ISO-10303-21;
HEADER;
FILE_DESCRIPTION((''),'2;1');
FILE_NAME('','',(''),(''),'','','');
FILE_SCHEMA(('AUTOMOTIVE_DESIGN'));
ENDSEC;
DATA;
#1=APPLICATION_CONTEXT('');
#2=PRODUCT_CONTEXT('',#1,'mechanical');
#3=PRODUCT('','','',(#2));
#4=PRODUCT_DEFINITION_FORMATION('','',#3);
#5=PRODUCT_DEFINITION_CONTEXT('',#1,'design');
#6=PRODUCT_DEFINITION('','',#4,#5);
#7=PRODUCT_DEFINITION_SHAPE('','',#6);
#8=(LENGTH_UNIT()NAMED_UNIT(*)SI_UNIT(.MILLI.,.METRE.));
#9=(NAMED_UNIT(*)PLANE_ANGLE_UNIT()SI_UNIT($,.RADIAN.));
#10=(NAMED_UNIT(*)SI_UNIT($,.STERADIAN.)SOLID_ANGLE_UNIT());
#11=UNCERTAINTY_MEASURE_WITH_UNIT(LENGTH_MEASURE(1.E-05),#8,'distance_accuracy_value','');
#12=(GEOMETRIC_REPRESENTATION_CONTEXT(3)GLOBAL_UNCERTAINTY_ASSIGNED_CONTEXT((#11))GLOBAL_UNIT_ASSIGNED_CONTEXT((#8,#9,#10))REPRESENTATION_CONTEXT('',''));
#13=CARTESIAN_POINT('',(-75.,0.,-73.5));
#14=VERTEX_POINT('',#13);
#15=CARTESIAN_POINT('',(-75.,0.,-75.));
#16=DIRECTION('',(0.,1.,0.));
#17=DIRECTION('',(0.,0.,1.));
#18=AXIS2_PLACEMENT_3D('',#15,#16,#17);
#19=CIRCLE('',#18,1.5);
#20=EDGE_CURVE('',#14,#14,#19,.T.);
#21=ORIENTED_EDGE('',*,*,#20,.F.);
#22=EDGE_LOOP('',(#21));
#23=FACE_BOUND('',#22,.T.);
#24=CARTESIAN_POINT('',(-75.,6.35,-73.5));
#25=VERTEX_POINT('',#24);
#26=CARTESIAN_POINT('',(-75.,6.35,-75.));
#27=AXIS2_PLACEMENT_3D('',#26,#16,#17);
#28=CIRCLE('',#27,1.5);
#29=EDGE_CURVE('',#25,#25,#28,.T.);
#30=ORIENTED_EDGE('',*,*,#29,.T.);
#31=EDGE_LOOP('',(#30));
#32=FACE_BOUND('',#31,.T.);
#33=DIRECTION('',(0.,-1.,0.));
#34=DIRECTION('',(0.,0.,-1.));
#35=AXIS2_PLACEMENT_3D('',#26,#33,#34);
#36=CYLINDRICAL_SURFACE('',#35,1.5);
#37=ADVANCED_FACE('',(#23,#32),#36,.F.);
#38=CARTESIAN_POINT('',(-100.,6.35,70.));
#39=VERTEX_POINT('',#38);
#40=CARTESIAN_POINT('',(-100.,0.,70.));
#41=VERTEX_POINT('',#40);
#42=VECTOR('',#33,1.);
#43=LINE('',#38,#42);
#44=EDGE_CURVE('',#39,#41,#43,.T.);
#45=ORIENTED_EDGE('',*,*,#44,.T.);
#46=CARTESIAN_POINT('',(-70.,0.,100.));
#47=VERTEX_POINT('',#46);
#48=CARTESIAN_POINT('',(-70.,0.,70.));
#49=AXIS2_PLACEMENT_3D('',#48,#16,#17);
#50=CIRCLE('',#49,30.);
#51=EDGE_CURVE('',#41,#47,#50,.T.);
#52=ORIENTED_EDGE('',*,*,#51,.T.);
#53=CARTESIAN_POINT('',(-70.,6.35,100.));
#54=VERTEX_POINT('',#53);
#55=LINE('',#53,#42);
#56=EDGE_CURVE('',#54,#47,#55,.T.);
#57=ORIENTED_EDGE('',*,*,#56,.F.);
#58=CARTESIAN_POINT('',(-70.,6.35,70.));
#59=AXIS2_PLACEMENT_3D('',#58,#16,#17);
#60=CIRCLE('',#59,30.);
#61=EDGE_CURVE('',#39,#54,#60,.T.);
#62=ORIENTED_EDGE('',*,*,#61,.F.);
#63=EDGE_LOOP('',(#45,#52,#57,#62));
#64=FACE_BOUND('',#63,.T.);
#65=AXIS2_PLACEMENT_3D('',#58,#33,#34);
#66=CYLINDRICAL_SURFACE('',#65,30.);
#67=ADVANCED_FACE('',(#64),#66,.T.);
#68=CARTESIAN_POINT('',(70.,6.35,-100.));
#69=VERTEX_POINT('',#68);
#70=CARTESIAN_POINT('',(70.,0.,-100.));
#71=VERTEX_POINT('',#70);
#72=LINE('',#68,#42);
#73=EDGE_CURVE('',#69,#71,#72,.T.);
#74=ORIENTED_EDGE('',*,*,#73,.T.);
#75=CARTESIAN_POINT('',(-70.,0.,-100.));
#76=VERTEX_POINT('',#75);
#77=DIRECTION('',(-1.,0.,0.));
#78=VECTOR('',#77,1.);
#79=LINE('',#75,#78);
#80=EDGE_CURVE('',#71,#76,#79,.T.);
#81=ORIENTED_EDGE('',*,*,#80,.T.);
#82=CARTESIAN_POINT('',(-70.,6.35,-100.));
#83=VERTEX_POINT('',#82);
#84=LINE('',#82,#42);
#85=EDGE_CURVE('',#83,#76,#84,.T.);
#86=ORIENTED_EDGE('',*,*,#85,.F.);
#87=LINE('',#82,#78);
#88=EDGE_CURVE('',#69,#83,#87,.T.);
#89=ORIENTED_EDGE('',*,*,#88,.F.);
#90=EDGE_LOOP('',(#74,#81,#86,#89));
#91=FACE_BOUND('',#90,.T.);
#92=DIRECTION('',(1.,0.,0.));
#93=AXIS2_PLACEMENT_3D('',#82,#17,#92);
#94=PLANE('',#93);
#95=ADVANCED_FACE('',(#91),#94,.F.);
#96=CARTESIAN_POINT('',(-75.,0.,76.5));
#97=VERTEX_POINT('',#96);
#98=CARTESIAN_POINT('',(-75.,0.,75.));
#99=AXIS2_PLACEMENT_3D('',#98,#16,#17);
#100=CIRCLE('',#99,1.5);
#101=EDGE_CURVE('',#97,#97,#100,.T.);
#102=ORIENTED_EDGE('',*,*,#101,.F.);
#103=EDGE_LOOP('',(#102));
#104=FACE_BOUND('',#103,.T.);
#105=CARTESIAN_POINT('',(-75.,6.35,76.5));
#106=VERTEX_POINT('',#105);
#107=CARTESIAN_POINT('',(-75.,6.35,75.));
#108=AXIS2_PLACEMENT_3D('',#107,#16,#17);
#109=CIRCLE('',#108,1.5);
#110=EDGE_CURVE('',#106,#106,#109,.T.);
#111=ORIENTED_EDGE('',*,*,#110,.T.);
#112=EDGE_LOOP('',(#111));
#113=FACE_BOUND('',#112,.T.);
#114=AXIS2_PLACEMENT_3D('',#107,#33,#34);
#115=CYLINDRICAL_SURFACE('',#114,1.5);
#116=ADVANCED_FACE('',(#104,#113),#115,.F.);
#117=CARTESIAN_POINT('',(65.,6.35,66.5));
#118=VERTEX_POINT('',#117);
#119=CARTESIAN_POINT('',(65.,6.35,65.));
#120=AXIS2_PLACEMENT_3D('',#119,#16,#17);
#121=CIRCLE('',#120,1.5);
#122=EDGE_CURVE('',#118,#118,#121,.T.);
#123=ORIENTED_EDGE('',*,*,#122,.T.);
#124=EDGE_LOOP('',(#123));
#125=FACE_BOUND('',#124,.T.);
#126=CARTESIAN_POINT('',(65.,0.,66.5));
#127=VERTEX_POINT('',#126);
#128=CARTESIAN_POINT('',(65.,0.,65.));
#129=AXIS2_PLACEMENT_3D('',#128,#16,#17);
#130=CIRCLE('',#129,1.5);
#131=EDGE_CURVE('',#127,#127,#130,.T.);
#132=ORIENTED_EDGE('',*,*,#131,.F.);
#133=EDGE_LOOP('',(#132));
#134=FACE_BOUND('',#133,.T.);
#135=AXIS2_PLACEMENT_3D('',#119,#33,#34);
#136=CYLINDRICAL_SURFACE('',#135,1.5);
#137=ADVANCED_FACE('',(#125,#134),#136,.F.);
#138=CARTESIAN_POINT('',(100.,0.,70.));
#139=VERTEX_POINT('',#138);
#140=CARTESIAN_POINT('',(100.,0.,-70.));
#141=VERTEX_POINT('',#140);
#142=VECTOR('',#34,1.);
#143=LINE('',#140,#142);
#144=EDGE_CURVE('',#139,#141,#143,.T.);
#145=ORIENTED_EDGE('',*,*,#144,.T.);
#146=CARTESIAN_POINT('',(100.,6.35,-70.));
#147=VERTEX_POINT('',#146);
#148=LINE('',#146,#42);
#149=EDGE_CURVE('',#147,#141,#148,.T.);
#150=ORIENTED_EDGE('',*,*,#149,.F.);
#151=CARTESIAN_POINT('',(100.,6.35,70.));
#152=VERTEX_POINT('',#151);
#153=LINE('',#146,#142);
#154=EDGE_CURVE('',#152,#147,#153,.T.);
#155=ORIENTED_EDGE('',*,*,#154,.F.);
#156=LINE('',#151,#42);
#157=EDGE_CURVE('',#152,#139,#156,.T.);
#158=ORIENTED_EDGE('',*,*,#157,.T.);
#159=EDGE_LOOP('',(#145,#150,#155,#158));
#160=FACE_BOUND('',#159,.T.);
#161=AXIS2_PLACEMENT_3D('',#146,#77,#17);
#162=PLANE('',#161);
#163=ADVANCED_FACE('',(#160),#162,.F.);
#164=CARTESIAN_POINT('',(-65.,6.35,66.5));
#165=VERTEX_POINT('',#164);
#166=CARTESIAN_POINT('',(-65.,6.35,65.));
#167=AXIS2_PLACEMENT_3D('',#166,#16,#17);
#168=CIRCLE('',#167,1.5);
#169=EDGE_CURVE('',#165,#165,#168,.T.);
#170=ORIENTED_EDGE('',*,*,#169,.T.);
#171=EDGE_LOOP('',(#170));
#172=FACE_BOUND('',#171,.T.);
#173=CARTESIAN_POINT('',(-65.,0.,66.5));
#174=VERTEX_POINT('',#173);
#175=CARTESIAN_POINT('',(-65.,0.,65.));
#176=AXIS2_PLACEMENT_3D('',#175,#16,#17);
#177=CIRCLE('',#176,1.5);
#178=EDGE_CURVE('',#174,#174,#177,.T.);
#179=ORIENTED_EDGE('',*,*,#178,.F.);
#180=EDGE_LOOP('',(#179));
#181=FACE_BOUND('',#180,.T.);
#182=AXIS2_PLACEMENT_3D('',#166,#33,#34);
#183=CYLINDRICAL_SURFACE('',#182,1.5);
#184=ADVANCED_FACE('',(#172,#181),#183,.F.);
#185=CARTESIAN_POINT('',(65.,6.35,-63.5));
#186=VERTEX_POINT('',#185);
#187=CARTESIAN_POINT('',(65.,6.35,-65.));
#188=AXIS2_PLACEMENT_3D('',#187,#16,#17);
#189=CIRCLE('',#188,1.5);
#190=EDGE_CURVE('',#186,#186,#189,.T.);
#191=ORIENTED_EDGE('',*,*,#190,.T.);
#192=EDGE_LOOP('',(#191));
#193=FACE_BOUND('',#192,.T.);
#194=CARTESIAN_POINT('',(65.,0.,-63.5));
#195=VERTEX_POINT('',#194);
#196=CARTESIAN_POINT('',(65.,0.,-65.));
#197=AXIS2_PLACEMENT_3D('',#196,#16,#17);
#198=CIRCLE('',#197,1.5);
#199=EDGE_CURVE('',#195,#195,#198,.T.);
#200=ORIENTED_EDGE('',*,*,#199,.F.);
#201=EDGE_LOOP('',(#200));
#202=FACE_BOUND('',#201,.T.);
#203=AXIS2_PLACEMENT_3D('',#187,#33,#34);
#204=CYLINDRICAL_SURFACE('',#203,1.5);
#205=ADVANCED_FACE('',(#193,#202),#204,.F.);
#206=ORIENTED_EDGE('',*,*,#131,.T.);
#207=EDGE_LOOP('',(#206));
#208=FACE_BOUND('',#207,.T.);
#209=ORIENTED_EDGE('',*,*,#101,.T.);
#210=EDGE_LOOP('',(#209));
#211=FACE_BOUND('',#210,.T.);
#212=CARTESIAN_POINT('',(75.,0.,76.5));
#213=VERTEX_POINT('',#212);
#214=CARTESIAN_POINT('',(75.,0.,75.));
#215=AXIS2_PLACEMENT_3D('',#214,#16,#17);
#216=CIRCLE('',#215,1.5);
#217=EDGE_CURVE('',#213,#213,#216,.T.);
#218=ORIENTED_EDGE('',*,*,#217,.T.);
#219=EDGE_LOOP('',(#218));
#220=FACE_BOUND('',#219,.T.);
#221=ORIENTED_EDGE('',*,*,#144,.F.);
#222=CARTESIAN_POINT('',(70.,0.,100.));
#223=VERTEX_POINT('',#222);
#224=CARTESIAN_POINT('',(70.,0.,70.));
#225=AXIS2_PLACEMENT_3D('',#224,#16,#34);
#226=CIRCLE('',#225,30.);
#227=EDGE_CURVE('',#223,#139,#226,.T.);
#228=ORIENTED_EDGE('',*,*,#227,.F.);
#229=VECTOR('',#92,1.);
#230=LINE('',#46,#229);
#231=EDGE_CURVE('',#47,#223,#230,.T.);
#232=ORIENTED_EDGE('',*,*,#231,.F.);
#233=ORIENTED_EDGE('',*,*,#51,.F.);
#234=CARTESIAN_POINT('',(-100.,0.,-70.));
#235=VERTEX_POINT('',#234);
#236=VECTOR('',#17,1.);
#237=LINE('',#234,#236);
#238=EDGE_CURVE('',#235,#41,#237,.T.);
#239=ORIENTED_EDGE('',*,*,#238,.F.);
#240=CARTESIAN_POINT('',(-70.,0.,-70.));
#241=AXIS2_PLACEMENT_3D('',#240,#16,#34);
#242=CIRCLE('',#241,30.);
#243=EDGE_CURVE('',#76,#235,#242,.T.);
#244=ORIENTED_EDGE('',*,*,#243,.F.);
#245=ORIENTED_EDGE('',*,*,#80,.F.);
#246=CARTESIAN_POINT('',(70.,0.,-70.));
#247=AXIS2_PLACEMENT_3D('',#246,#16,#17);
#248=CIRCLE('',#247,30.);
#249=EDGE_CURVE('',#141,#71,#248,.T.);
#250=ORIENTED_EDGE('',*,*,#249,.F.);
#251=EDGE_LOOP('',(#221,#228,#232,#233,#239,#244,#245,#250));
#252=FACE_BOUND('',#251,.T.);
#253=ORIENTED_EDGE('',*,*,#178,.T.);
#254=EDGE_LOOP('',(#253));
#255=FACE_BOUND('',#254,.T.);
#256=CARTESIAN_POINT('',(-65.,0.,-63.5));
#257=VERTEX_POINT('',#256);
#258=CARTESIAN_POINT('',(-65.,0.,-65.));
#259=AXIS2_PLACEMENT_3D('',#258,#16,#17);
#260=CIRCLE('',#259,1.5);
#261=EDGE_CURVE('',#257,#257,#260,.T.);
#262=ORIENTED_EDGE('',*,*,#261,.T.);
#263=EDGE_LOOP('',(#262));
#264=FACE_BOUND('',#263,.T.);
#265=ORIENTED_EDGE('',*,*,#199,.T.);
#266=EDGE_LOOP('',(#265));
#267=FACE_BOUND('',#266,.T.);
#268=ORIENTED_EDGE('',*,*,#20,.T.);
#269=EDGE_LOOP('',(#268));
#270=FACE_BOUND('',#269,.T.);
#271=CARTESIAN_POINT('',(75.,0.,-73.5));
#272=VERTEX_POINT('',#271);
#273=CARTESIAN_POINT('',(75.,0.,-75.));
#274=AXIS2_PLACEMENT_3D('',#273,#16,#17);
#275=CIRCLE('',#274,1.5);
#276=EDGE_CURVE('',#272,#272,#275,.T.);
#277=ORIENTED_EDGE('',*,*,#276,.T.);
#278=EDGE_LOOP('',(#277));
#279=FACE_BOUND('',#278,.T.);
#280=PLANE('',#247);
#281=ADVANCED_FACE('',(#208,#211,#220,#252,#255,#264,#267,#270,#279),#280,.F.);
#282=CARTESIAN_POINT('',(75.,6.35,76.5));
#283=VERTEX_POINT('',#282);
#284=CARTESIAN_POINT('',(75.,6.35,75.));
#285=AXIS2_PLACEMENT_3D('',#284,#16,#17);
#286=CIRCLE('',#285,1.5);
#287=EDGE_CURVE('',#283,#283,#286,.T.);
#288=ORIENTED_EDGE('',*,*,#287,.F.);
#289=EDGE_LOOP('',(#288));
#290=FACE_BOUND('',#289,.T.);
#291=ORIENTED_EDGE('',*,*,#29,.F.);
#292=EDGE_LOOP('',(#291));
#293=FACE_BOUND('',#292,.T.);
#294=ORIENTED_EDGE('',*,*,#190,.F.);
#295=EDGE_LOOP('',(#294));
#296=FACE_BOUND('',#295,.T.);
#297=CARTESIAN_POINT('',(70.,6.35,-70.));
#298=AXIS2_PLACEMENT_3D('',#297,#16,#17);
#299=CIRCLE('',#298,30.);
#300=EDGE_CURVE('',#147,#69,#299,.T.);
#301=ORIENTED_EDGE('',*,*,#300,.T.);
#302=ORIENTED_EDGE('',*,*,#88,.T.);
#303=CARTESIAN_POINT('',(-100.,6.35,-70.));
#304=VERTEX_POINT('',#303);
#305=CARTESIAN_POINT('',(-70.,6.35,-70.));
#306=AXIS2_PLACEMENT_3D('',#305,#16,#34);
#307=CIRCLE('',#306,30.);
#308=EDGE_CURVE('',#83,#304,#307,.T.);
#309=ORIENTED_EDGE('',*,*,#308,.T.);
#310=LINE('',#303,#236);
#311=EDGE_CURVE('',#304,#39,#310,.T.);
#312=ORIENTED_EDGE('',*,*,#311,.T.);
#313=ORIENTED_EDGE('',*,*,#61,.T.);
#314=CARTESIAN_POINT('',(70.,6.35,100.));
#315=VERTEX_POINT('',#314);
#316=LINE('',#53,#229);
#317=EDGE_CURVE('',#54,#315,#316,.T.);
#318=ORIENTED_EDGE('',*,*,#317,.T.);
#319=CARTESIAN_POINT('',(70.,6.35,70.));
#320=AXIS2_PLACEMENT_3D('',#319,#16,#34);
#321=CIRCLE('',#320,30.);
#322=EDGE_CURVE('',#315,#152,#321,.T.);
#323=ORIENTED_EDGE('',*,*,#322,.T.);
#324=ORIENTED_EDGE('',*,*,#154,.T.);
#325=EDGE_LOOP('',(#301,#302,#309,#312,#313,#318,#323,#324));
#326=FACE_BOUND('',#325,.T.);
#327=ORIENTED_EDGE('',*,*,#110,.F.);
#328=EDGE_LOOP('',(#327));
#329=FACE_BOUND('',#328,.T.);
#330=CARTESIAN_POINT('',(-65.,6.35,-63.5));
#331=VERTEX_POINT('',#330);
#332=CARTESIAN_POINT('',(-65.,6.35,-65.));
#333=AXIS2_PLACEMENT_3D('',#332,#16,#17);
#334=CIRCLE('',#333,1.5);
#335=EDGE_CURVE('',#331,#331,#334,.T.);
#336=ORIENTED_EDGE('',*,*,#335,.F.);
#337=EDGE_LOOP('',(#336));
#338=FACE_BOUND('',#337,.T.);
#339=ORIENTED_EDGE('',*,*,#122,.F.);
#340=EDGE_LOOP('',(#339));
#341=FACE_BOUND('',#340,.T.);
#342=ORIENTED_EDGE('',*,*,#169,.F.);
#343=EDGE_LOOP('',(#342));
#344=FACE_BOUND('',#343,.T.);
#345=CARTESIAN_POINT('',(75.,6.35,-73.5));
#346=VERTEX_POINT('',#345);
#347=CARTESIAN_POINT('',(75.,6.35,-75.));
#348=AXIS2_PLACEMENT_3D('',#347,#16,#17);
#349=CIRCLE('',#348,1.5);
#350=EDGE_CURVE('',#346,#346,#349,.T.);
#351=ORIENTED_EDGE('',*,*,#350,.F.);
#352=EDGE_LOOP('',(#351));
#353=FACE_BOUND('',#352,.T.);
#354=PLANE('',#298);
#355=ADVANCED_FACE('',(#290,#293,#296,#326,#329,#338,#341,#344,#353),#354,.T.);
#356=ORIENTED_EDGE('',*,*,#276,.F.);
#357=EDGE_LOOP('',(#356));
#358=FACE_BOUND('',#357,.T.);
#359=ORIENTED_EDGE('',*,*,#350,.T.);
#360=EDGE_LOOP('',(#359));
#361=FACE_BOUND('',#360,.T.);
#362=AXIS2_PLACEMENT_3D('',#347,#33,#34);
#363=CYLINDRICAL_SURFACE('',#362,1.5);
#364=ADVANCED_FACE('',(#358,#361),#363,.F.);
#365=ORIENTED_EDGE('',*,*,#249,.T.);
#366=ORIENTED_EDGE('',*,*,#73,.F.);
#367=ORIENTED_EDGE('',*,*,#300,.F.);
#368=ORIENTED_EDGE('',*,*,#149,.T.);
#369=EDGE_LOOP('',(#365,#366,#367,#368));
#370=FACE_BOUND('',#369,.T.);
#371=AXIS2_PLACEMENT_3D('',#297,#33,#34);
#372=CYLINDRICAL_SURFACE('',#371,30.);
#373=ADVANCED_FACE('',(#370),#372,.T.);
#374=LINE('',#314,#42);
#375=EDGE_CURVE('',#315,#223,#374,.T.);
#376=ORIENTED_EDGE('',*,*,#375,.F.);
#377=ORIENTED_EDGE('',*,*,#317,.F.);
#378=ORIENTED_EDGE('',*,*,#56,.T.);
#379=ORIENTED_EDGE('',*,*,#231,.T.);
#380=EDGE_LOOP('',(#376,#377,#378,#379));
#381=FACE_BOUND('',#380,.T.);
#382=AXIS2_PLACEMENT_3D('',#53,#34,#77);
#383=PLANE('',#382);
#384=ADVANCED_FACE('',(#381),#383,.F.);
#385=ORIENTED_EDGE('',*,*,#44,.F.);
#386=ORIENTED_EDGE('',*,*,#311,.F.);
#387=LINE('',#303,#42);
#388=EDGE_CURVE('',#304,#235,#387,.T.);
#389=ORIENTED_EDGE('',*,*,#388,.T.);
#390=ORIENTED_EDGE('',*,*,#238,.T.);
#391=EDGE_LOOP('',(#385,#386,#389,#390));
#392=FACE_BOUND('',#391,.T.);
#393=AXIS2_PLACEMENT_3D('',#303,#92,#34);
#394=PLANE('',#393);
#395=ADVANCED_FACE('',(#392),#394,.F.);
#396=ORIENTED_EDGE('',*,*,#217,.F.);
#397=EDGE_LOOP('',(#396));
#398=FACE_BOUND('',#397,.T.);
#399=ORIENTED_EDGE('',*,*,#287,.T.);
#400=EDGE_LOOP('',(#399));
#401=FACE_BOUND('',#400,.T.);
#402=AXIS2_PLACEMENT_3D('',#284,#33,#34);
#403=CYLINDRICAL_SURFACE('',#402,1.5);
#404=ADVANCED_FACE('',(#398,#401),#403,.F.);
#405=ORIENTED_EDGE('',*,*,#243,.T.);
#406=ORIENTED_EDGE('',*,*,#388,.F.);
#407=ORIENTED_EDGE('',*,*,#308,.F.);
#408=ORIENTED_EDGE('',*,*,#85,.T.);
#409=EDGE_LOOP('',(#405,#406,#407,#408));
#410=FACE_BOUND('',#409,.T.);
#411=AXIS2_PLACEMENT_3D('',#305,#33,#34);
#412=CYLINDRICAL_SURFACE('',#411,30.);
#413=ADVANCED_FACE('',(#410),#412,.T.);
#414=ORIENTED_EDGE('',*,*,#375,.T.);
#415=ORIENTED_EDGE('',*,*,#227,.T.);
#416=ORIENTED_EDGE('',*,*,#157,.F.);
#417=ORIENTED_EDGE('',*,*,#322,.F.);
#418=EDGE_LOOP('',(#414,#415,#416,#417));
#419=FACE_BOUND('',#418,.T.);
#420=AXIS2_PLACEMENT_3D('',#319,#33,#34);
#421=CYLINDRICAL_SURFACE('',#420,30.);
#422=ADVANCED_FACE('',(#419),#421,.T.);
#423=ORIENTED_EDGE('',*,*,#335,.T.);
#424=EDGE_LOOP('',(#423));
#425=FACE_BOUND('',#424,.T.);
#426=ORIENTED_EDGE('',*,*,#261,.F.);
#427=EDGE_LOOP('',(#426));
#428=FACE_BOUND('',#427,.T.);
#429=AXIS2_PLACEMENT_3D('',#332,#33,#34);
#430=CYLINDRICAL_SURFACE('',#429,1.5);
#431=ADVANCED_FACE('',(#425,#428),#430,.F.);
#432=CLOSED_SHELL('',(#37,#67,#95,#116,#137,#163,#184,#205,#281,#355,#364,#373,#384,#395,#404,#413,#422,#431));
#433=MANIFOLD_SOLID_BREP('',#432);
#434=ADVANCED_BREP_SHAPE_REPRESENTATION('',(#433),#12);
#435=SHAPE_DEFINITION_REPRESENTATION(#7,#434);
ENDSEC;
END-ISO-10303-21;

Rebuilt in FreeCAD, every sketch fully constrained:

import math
import FreeCAD as App
import Part
import Sketcher
Q = App.Units.Quantity

doc = App.newDocument("Part")
body = doc.addObject("PartDesign::Body", "Body")

# Sketch on XZ plane
sketch1 = body.newObject("Sketcher::SketchObject", "Sketch")
sketch1.AttachmentSupport = (doc.getObject("XZ_Plane"), [""])
sketch1.MapMode = "FlatFace"
sketch1.addGeometry([
    Part.LineSegment(App.Vector(-70, 100, 0), App.Vector(70, 100, 0)),  # 0
    Part.ArcOfCircle(Part.Circle(App.Vector(70, 70, 0), App.Vector(0, 0, 1), 30), math.radians(0), math.radians(90)),  # 1
    Part.LineSegment(App.Vector(100, 70, 0), App.Vector(100, -70, 0)),  # 2
    Part.ArcOfCircle(Part.Circle(App.Vector(70, -70, 0), App.Vector(0, 0, 1), 30), math.radians(-90), math.radians(0)),  # 3
    Part.LineSegment(App.Vector(70, -100, 0), App.Vector(-70, -100, 0)),  # 4
    Part.ArcOfCircle(Part.Circle(App.Vector(-70, -70, 0), App.Vector(0, 0, 1), 30), math.radians(180), math.radians(270)),  # 5
    Part.LineSegment(App.Vector(-100, -70, 0), App.Vector(-100, 70, 0)),  # 6
    Part.ArcOfCircle(Part.Circle(App.Vector(-70, 70, 0), App.Vector(0, 0, 1), 30), math.radians(90), math.radians(180)),  # 7
    Part.Circle(App.Vector(-75, 75, 0), App.Vector(0, 0, 1), 1.5),  # 8
    Part.Circle(App.Vector(-65, 65, 0), App.Vector(0, 0, 1), 1.5),  # 9
    Part.Circle(App.Vector(75, 75, 0), App.Vector(0, 0, 1), 1.5),  # 10
    Part.Circle(App.Vector(65, 65, 0), App.Vector(0, 0, 1), 1.5),  # 11
    Part.Circle(App.Vector(-65, -65, 0), App.Vector(0, 0, 1), 1.5),  # 12
    Part.Circle(App.Vector(-75, -75, 0), App.Vector(0, 0, 1), 1.5),  # 13
    Part.Circle(App.Vector(65, -65, 0), App.Vector(0, 0, 1), 1.5),  # 14
    Part.Circle(App.Vector(75, -75, 0), App.Vector(0, 0, 1), 1.5),  # 15
], False)
sketch1.addConstraint([
    Sketcher.Constraint("Tangent", 0, 2, 1, 2),
    Sketcher.Constraint("Tangent", 1, 1, 2, 1),
    Sketcher.Constraint("Tangent", 2, 2, 3, 2),
    Sketcher.Constraint("Tangent", 3, 1, 4, 1),
    Sketcher.Constraint("Tangent", 4, 2, 5, 2),
    Sketcher.Constraint("Tangent", 5, 1, 6, 1),
    Sketcher.Constraint("Tangent", 6, 2, 7, 2),
    Sketcher.Constraint("Tangent", 7, 1, 0, 1),
    Sketcher.Constraint("Horizontal", 0),
    Sketcher.Constraint("Vertical", 2),
    Sketcher.Constraint("Horizontal", 4),
    Sketcher.Constraint("Vertical", 6),
    Sketcher.Constraint("Equal", 1, 3),
    Sketcher.Constraint("Equal", 3, 5),
    Sketcher.Constraint("Equal", 5, 7),
    Sketcher.Constraint("Equal", 8, 9),
    Sketcher.Constraint("Equal", 9, 10),
    Sketcher.Constraint("Equal", 10, 11),
    Sketcher.Constraint("Equal", 11, 12),
    Sketcher.Constraint("Equal", 12, 13),
    Sketcher.Constraint("Equal", 13, 14),
    Sketcher.Constraint("Equal", 14, 15),
    Sketcher.Constraint("Symmetric", 1, 3, 5, 3, -1, 1),
    Sketcher.Constraint("Symmetric", 11, 3, 12, 3, -1, 1),
    Sketcher.Constraint("Symmetric", 10, 3, 13, 3, -1, 1),
    Sketcher.Constraint("Symmetric", 9, 3, 14, 3, -1, 1),
    Sketcher.Constraint("Symmetric", 8, 3, 15, 3, -1, 1),
    Sketcher.Constraint("Symmetric", 8, 3, 10, 3, -2),
    Sketcher.Constraint("Symmetric", 9, 3, 11, 3, -2),
    Sketcher.Constraint("Equal", 4, 2),
    Sketcher.Constraint("Diameter", 8, Q("3 mm")),
    Sketcher.Constraint("Radius", 1, Q("30 mm")),
    Sketcher.Constraint("DistanceX", 0, 1, 0, 2, Q("140 mm")),
    Sketcher.Constraint("DistanceX", 8, 3, -1, 1, Q("75 mm")),
    Sketcher.Constraint("DistanceY", -1, 1, 8, 3, Q("75 mm")),
    Sketcher.Constraint("DistanceX", 9, 3, -1, 1, Q("65 mm")),
    Sketcher.Constraint("DistanceY", -1, 1, 9, 3, Q("65 mm")),
])
pad1 = body.newObject("PartDesign::Pad", "Pad")
pad1.Profile = sketch1
pad1.Length = 6.35
pad1.Reversed = True

doc.recompute()
